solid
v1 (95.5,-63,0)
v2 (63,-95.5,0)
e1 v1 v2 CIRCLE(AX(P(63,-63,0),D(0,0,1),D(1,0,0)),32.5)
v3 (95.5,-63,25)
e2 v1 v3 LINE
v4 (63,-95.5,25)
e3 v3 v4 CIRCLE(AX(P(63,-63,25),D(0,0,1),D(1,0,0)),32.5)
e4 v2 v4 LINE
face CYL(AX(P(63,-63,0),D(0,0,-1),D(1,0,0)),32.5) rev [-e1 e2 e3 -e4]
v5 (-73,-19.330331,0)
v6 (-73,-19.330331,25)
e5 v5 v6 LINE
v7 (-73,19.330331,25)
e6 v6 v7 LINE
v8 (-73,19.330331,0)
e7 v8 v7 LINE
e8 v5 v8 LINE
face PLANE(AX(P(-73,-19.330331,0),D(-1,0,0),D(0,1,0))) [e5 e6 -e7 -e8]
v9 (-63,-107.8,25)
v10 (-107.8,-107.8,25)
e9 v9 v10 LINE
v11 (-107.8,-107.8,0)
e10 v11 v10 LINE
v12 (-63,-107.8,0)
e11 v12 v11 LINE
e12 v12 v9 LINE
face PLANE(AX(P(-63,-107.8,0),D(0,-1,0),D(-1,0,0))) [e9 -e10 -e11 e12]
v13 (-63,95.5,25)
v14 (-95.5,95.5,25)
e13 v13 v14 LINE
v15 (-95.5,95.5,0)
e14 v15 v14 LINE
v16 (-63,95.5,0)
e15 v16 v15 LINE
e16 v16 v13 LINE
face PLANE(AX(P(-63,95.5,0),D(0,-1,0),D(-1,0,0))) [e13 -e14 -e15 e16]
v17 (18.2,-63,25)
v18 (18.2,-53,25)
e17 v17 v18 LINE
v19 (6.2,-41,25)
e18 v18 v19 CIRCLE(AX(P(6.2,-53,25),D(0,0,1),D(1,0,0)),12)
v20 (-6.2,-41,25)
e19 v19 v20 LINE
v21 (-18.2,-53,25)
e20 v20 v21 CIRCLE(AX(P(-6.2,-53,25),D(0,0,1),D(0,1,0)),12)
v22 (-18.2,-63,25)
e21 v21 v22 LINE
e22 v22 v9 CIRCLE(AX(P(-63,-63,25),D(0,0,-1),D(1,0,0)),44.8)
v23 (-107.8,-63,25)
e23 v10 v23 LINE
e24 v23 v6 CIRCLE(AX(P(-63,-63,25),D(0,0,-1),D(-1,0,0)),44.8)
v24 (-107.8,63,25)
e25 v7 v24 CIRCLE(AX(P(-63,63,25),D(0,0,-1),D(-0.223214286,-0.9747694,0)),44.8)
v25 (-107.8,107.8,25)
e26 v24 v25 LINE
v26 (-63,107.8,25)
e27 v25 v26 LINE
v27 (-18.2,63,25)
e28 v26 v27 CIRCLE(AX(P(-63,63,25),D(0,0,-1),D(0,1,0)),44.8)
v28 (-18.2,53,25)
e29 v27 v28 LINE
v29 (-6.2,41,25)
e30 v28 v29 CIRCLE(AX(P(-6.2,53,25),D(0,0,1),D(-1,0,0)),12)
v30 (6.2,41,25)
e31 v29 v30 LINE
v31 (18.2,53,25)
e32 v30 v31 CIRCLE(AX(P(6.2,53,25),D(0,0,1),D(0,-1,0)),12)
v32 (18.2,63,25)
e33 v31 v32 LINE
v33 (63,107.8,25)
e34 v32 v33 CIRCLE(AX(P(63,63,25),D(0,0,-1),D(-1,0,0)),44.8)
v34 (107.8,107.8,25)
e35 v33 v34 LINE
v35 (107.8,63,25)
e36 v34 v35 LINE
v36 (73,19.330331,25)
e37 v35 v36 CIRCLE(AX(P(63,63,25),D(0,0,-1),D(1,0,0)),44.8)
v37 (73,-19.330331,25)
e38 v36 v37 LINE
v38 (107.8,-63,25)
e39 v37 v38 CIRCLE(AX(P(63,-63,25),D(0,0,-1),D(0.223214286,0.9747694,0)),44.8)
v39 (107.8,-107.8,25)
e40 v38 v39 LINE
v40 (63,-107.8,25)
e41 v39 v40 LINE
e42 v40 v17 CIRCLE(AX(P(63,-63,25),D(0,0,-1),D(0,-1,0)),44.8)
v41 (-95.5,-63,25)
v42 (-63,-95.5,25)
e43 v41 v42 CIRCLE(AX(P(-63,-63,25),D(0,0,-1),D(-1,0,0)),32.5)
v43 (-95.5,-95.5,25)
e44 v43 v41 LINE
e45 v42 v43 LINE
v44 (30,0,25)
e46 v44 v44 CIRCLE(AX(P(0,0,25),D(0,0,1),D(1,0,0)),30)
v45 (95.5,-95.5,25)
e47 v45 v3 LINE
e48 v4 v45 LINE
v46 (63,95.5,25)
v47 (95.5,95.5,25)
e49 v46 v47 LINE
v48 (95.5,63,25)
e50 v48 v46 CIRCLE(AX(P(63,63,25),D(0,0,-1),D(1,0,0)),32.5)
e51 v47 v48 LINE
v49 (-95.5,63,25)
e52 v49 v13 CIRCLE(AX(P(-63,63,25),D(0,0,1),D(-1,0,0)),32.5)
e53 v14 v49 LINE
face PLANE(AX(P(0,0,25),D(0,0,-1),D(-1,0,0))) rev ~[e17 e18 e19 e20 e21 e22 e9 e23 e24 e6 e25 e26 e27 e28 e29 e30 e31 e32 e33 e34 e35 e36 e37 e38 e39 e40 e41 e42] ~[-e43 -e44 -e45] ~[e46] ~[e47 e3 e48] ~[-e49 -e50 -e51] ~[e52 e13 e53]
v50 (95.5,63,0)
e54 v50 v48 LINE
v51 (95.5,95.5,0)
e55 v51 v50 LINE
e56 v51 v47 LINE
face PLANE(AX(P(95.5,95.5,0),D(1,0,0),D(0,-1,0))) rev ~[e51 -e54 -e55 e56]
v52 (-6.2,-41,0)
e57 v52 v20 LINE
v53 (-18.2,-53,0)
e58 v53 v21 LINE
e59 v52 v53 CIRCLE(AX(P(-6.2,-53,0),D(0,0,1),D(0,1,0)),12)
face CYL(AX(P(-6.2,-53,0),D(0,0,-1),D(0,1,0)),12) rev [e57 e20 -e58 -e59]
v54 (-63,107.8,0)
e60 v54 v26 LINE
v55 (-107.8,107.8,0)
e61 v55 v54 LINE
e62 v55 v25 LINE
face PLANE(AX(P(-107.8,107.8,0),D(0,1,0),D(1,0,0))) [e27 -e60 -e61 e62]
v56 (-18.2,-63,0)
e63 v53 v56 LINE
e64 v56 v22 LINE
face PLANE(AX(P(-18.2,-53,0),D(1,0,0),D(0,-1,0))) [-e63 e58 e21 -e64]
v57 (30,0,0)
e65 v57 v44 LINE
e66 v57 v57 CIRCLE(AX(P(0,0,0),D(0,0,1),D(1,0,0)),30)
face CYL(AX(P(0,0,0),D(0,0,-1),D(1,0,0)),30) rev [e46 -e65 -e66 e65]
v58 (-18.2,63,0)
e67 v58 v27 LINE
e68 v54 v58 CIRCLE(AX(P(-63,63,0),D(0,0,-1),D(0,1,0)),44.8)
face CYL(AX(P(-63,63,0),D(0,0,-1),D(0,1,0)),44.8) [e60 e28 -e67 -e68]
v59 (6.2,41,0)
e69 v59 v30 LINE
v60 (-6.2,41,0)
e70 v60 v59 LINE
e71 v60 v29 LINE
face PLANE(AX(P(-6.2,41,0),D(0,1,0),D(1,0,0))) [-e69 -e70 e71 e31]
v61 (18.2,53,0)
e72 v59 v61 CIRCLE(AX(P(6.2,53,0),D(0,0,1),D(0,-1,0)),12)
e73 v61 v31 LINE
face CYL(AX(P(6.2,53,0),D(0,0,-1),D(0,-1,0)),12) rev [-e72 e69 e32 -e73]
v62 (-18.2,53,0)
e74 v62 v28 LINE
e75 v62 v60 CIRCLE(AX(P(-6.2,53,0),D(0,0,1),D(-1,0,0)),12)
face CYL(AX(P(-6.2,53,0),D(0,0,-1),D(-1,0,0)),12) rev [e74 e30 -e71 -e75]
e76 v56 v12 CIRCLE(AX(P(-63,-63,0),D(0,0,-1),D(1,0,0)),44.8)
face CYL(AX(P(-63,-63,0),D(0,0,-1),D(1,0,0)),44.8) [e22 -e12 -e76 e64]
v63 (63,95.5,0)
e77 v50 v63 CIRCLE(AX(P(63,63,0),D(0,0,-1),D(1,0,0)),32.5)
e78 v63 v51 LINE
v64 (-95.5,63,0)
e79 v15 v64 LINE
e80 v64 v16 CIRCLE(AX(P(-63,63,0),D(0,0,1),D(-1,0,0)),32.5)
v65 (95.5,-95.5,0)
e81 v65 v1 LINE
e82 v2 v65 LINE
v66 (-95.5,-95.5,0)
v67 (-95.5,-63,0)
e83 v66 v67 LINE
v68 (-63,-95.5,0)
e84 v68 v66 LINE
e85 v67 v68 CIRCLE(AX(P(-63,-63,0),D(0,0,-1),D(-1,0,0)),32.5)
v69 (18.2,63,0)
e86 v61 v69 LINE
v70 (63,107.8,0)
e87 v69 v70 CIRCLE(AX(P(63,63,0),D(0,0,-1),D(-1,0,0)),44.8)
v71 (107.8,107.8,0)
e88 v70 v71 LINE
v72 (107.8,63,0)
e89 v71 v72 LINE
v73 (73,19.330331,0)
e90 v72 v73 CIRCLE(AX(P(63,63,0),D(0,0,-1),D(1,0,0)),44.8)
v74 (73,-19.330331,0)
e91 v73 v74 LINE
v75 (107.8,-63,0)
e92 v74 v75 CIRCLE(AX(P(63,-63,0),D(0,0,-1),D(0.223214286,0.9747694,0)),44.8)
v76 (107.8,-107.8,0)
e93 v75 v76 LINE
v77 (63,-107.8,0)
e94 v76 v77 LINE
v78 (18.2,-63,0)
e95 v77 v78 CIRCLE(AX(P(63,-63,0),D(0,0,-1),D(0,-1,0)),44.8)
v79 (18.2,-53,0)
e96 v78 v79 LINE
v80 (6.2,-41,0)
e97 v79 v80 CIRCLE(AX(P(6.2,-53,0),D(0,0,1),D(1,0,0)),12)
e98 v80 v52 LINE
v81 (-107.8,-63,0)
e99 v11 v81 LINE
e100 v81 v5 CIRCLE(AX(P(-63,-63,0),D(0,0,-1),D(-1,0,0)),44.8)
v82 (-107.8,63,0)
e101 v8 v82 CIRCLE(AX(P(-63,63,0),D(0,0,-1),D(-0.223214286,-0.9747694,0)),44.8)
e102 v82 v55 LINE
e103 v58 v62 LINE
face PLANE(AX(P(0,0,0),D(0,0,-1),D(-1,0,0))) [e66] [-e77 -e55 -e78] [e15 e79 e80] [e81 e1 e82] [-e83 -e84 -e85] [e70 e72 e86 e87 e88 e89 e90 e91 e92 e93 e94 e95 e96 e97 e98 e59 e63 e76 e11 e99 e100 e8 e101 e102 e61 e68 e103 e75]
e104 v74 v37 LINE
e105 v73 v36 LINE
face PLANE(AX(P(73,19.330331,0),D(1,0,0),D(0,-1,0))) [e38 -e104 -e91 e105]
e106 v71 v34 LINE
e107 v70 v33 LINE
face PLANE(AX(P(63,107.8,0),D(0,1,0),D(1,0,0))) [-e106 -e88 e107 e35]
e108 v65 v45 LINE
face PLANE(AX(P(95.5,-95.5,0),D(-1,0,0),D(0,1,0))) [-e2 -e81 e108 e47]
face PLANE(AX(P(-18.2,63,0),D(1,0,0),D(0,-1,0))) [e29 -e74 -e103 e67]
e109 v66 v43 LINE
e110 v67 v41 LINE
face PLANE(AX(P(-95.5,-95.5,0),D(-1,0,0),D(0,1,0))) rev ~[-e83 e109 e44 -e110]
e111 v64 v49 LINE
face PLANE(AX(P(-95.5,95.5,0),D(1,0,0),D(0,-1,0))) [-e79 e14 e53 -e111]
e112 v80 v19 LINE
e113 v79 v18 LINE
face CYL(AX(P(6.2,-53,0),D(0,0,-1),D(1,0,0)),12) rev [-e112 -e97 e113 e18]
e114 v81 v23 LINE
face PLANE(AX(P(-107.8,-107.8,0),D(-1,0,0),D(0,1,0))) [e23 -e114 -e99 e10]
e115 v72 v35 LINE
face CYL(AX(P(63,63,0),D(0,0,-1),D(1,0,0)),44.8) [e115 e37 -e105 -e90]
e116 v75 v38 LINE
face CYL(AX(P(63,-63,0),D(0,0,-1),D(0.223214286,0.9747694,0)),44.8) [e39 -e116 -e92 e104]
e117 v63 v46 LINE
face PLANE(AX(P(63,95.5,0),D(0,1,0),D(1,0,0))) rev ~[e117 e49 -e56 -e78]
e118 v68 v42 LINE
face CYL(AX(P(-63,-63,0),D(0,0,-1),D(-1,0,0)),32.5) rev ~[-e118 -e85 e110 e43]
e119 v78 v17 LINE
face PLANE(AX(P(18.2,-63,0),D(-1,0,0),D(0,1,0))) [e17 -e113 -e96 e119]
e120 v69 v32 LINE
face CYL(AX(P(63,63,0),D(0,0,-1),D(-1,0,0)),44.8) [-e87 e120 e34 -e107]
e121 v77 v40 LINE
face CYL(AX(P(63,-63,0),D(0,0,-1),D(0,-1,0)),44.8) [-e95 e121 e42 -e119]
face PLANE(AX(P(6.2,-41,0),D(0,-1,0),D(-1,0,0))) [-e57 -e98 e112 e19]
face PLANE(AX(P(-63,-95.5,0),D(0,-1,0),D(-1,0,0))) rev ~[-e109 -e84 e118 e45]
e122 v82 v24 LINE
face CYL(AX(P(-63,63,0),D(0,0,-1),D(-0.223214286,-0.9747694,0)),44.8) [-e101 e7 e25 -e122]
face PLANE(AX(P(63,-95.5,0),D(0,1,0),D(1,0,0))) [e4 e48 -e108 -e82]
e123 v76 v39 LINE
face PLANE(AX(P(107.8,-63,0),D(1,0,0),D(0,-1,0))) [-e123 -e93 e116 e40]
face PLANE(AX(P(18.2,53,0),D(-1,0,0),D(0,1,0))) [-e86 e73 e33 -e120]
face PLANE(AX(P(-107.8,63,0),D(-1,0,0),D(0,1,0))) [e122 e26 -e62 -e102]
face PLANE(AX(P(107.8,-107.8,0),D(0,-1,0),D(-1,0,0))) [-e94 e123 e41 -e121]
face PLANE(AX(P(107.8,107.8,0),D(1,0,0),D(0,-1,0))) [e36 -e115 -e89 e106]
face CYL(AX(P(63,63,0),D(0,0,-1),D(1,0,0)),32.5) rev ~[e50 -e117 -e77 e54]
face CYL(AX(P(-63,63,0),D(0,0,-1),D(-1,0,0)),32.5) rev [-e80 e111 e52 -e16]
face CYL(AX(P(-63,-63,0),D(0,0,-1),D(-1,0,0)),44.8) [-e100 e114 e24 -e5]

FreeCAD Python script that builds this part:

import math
import FreeCAD as App
import Part
import Sketcher

V = App.Vector
Q = App.Units.Quantity

doc = App.newDocument("Part")
params = doc.addObject("Spreadsheet::Sheet", "Params")
for row, (alias, value) in enumerate([
    ("sketch1_diameter", "60 mm"),
    ("sketch1_radius", "12 mm"),
    ("sketch1_radius2", "44.8 mm"),
    ("sketch1_radius3", "32.5 mm"),
    ("sketch1_height", "10 mm"),
    ("pad1_length", "25 mm"),
], start=1):
    params.set(f"A{row}", alias)
    params.set(f"B{row}", "=" + value)
    params.setAlias(f"B{row}", alias)

body = doc.addObject("PartDesign::Body", "Body")

# Sketch on XY plane
sketch1 = body.newObject("Sketcher::SketchObject", "Sketch")
sketch1.AttachmentSupport = (doc.getObject("XY_Plane"), [""])
sketch1.MapMode = "FlatFace"
sketch1.addGeometry(Part.LineSegment(V(107.8, 107.8, 0), V(63, 107.8, 0)), False)
sketch1.addGeometry(Part.ArcOfCircle(Part.Circle(V(63, 63, 0), V(0, 0, 1), 44.8), math.radians(90), math.radians(180)), False)
sketch1.addGeometry(Part.LineSegment(V(18.2, 63, 0), V(18.2, 53, 0)), False)
sketch1.addGeometry(Part.ArcOfCircle(Part.Circle(V(6.2, 53, 0), V(0, 0, 1), 12), math.radians(-90), math.radians(0)), False)
sketch1.addGeometry(Part.LineSegment(V(6.2, 41, 0), V(-6.2, 41, 0)), False)
sketch1.addGeometry(Part.ArcOfCircle(Part.Circle(V(-6.2, 53, 0), V(0, 0, 1), 12), math.radians(-180), math.radians(-90)), False)
sketch1.addGeometry(Part.LineSegment(V(-18.2, 53, 0), V(-18.2, 63, 0)), False)
sketch1.addGeometry(Part.ArcOfCircle(Part.Circle(V(-63, 63, 0), V(0, 0, 1), 44.8), math.radians(0), math.radians(90)), False)
sketch1.addGeometry(Part.LineSegment(V(-63, 107.8, 0), V(-107.8, 107.8, 0)), False)
sketch1.addGeometry(Part.LineSegment(V(-107.8, 107.8, 0), V(-107.8, 63, 0)), False)
sketch1.addGeometry(Part.ArcOfCircle(Part.Circle(V(-63, 63, 0), V(0, 0, 1), 44.8), math.radians(180), math.radians(257.102106)), False)
sketch1.addGeometry(Part.LineSegment(V(-73, 19.330331, 0), V(-73, -19.330331, 0)), False)
sketch1.addGeometry(Part.ArcOfCircle(Part.Circle(V(-63, -63, 0), V(0, 0, 1), 44.8), math.radians(102.897894), math.radians(180)), False)
sketch1.addGeometry(Part.LineSegment(V(-107.8, -63, 0), V(-107.8, -107.8, 0)), False)
sketch1.addGeometry(Part.LineSegment(V(-107.8, -107.8, 0), V(-63, -107.8, 0)), False)
sketch1.addGeometry(Part.ArcOfCircle(Part.Circle(V(-63, -63, 0), V(0, 0, 1), 44.8), math.radians(-90), math.radians(0)), False)
sketch1.addGeometry(Part.LineSegment(V(-18.2, -63, 0), V(-18.2, -53, 0)), False)
sketch1.addGeometry(Part.ArcOfCircle(Part.Circle(V(-6.2, -53, 0), V(0, 0, 1), 12), math.radians(90), math.radians(180)), False)
sketch1.addGeometry(Part.LineSegment(V(-6.2, -41, 0), V(6.2, -41, 0)), False)
sketch1.addGeometry(Part.ArcOfCircle(Part.Circle(V(6.2, -53, 0), V(0, 0, 1), 12), math.radians(0), math.radians(90)), False)
sketch1.addGeometry(Part.LineSegment(V(18.2, -53, 0), V(18.2, -63, 0)), False)
sketch1.addGeometry(Part.ArcOfCircle(Part.Circle(V(63, -63, 0), V(0, 0, 1), 44.8), math.radians(-180), math.radians(-90)), False)
sketch1.addGeometry(Part.LineSegment(V(63, -107.8, 0), V(107.8, -107.8, 0)), False)
sketch1.addGeometry(Part.LineSegment(V(107.8, -107.8, 0), V(107.8, -63, 0)), False)
sketch1.addGeometry(Part.ArcOfCircle(Part.Circle(V(63, -63, 0), V(0, 0, 1), 44.8), math.radians(0), math.radians(77.102106)), False)
sketch1.addGeometry(Part.LineSegment(V(73, -19.330331, 0), V(73, 19.330331, 0)), False)
sketch1.addGeometry(Part.ArcOfCircle(Part.Circle(V(63, 63, 0), V(0, 0, 1), 44.8), math.radians(-77.102106), math.radians(0)), False)
sketch1.addGeometry(Part.LineSegment(V(107.8, 63, 0), V(107.8, 107.8, 0)), False)
sketch1.addGeometry(Part.LineSegment(V(95.5, -95.5, 0), V(63, -95.5, 0)), False)
sketch1.addGeometry(Part.ArcOfCircle(Part.Circle(V(63, -63, 0), V(0, 0, 1), 32.5), math.radians(0), math.radians(270)), False)
sketch1.addGeometry(Part.LineSegment(V(95.5, -63, 0), V(95.5, -95.5, 0)), False)
sketch1.addGeometry(Part.LineSegment(V(-63, -95.5, 0), V(-95.5, -95.5, 0)), False)
sketch1.addGeometry(Part.LineSegment(V(-95.5, -95.5, 0), V(-95.5, -63, 0)), False)
sketch1.addGeometry(Part.ArcOfCircle(Part.Circle(V(-63, -63, 0), V(0, 0, 1), 32.5), math.radians(-90), math.radians(180)), False)
sketch1.addGeometry(Part.LineSegment(V(63, 95.5, 0), V(95.5, 95.5, 0)), False)
sketch1.addGeometry(Part.LineSegment(V(95.5, 95.5, 0), V(95.5, 63, 0)), False)
sketch1.addGeometry(Part.ArcOfCircle(Part.Circle(V(63, 63, 0), V(0, 0, 1), 32.5), math.radians(90), math.radians(360)), False)
sketch1.addGeometry(Part.Circle(V(0, 0, 0), V(0, 0, 1), 30), False)
sketch1.addGeometry(Part.LineSegment(V(-95.5, 95.5, 0), V(-63, 95.5, 0)), False)
sketch1.addGeometry(Part.ArcOfCircle(Part.Circle(V(-63, 63, 0), V(0, 0, 1), 32.5), math.radians(180), math.radians(450)), False)
sketch1.addGeometry(Part.LineSegment(V(-95.5, 63, 0), V(-95.5, 95.5, 0)), False)
sketch1.addConstraint(Sketcher.Constraint("Tangent", 0, 2, 1, 1))
sketch1.addConstraint(Sketcher.Constraint("Tangent", 1, 2, 2, 1))
sketch1.addConstraint(Sketcher.Constraint("Tangent", 2, 2, 3, 2))
sketch1.addConstraint(Sketcher.Constraint("Tangent", 3, 1, 4, 1))
sketch1.addConstraint(Sketcher.Constraint("Tangent", 4, 2, 5, 2))
sketch1.addConstraint(Sketcher.Constraint("Tangent", 5, 1, 6, 1))
sketch1.addConstraint(Sketcher.Constraint("Tangent", 6, 2, 7, 1))
sketch1.addConstraint(Sketcher.Constraint("Tangent", 7, 2, 8, 1))
sketch1.addConstraint(Sketcher.Constraint("Coincident", 8, 2, 9, 1))
sketch1.addConstraint(Sketcher.Constraint("Tangent", 9, 2, 10, 1))
sketch1.addConstraint(Sketcher.Constraint("Coincident", 10, 2, 11, 1))
sketch1.addConstraint(Sketcher.Constraint("Coincident", 11, 2, 12, 1))
sketch1.addConstraint(Sketcher.Constraint("Tangent", 12, 2, 13, 1))
sketch1.addConstraint(Sketcher.Constraint("Coincident", 13, 2, 14, 1))
sketch1.addConstraint(Sketcher.Constraint("Tangent", 14, 2, 15, 1))
sketch1.addConstraint(Sketcher.Constraint("Tangent", 15, 2, 16, 1))
sketch1.addConstraint(Sketcher.Constraint("Tangent", 16, 2, 17, 2))
sketch1.addConstraint(Sketcher.Constraint("Tangent", 17, 1, 18, 1))
sketch1.addConstraint(Sketcher.Constraint("Tangent", 18, 2, 19, 2))
sketch1.addConstraint(Sketcher.Constraint("Tangent", 19, 1, 20, 1))
sketch1.addConstraint(Sketcher.Constraint("Tangent", 20, 2, 21, 1))
sketch1.addConstraint(Sketcher.Constraint("Tangent", 21, 2, 22, 1))
sketch1.addConstraint(Sketcher.Constraint("Coincident", 22, 2, 23, 1))
sketch1.addConstraint(Sketcher.Constraint("Tangent", 23, 2, 24, 1))
sketch1.addConstraint(Sketcher.Constraint("Coincident", 24, 2, 25, 1))
sketch1.addConstraint(Sketcher.Constraint("Coincident", 25, 2, 26, 1))
sketch1.addConstraint(Sketcher.Constraint("Tangent", 26, 2, 27, 1))
sketch1.addConstraint(Sketcher.Constraint("Coincident", 27, 2, 0, 1))
sketch1.addConstraint(Sketcher.Constraint("Tangent", 28, 2, 29, 2))
sketch1.addConstraint(Sketcher.Constraint("Tangent", 29, 1, 30, 1))
sketch1.addConstraint(Sketcher.Constraint("Coincident", 30, 2, 28, 1))
sketch1.addConstraint(Sketcher.Constraint("Coincident", 31, 2, 32, 1))
sketch1.addConstraint(Sketcher.Constraint("Tangent", 32, 2, 33, 2))
sketch1.addConstraint(Sketcher.Constraint("Tangent", 33, 1, 31, 1))
sketch1.addConstraint(Sketcher.Constraint("Coincident", 34, 2, 35, 1))
sketch1.addConstraint(Sketcher.Constraint("Tangent", 35, 2, 36, 2))
sketch1.addConstraint(Sketcher.Constraint("Tangent", 36, 1, 34, 1))
sketch1.addConstraint(Sketcher.Constraint("Tangent", 38, 2, 39, 2))
sketch1.addConstraint(Sketcher.Constraint("Tangent", 39, 1, 40, 1))
sketch1.addConstraint(Sketcher.Constraint("Coincident", 40, 2, 38, 1))
sketch1.addConstraint(Sketcher.Constraint("Horizontal", 0))
sketch1.addConstraint(Sketcher.Constraint("Vertical", 2))
sketch1.addConstraint(Sketcher.Constraint("Horizontal", 4))
sketch1.addConstraint(Sketcher.Constraint("Vertical", 6))
sketch1.addConstraint(Sketcher.Constraint("Horizontal", 8))
sketch1.addConstraint(Sketcher.Constraint("Vertical", 9))
sketch1.addConstraint(Sketcher.Constraint("Vertical", 11))
sketch1.addConstraint(Sketcher.Constraint("Vertical", 13))
sketch1.addConstraint(Sketcher.Constraint("Horizontal", 14))
sketch1.addConstraint(Sketcher.Constraint("Vertical", 16))
sketch1.addConstraint(Sketcher.Constraint("Horizontal", 18))
sketch1.addConstraint(Sketcher.Constraint("Vertical", 20))
sketch1.addConstraint(Sketcher.Constraint("Horizontal", 22))
sketch1.addConstraint(Sketcher.Constraint("Vertical", 23))
sketch1.addConstraint(Sketcher.Constraint("Vertical", 25))
sketch1.addConstraint(Sketcher.Constraint("Vertical", 27))
sketch1.addConstraint(Sketcher.Constraint("Horizontal", 28))
sketch1.addConstraint(Sketcher.Constraint("Vertical", 30))
sketch1.addConstraint(Sketcher.Constraint("Horizontal", 31))
sketch1.addConstraint(Sketcher.Constraint("Vertical", 32))
sketch1.addConstraint(Sketcher.Constraint("Horizontal", 34))
sketch1.addConstraint(Sketcher.Constraint("Vertical", 35))
sketch1.addConstraint(Sketcher.Constraint("Horizontal", 38))
sketch1.addConstraint(Sketcher.Constraint("Vertical", 40))
sketch1.addConstraint(Sketcher.Constraint("Coincident", 37, 3, -1, 1))
sketch1.addConstraint(Sketcher.Constraint("Coincident", 10, 3, 7, 3))
sketch1.addConstraint(Sketcher.Constraint("Coincident", 15, 3, 12, 3))
sketch1.addConstraint(Sketcher.Constraint("Coincident", 24, 3, 21, 3))
sketch1.addConstraint(Sketcher.Constraint("Coincident", 26, 3, 1, 3))
sketch1.addConstraint(Sketcher.Constraint("Coincident", 29, 3, 21, 3))
sketch1.addConstraint(Sketcher.Constraint("Coincident", 33, 3, 12, 3))
sketch1.addConstraint(Sketcher.Constraint("Coincident", 36, 3, 1, 3))
sketch1.addConstraint(Sketcher.Constraint("Coincident", 39, 3, 7, 3))
sketch1.addConstraint(Sketcher.Constraint("Equal", 3, 5))
sketch1.addConstraint(Sketcher.Constraint("Equal", 1, 7))
sketch1.addConstraint(Sketcher.Constraint("Equal", 7, 10))
sketch1.addConstraint(Sketcher.Constraint("Equal", 10, 12))
sketch1.addConstraint(Sketcher.Constraint("Equal", 12, 15))
sketch1.addConstraint(Sketcher.Constraint("Equal", 5, 17))
sketch1.addConstraint(Sketcher.Constraint("Equal", 17, 19))
sketch1.addConstraint(Sketcher.Constraint("Equal", 15, 21))
sketch1.addConstraint(Sketcher.Constraint("Equal", 21, 24))
sketch1.addConstraint(Sketcher.Constraint("Equal", 24, 26))
sketch1.addConstraint(Sketcher.Constraint("Equal", 29, 33))
sketch1.addConstraint(Sketcher.Constraint("Equal", 33, 36))
sketch1.addConstraint(Sketcher.Constraint("Equal", 36, 39))
sketch1.addConstraint(Sketcher.Constraint("Symmetric", 1, 3, 12, 3, -1, 1))
sketch1.addConstraint(Sketcher.Constraint("Symmetric", 5, 3, 19, 3, -1, 1))
sketch1.addConstraint(Sketcher.Constraint("Symmetric", 10, 2, 24, 2, -1, 1))
sketch1.addConstraint(Sketcher.Constraint("Symmetric", 1, 3, 7, 3, -2))
sketch1.addConstraint(Sketcher.Constraint("Diameter", 37, Q("60 mm")))
sketch1.addConstraint(Sketcher.Constraint("Radius", 3, Q("12 mm")))
sketch1.addConstraint(Sketcher.Constraint("Radius", 1, Q("44.8 mm")))
sketch1.addConstraint(Sketcher.Constraint("Radius", 29, Q("32.5 mm")))
sketch1.addConstraint(Sketcher.Constraint("DistanceY", 2, 2, 2, 1, Q("10 mm")))
sketch1.addConstraint(Sketcher.Constraint("DistanceX", 4, 2, 4, 1, Q("12.4 mm")))
sketch1.addConstraint(Sketcher.Constraint("DistanceY", -1, 1, 1, 3, Q("63 mm")))
sketch1.addConstraint(Sketcher.Constraint("DistanceX", 10, 2, -1, 1, Q("73 mm")))
sketch1.setExpression("Constraints[90]", "Params.sketch1_diameter")
sketch1.setExpression("Constraints[91]", "Params.sketch1_radius")
sketch1.setExpression("Constraints[92]", "Params.sketch1_radius2")
sketch1.setExpression("Constraints[93]", "Params.sketch1_radius3")
sketch1.setExpression("Constraints[94]", "Params.sketch1_height")
pad1 = body.newObject("PartDesign::Pad", "Pad")
pad1.Profile = sketch1
pad1.setExpression("Length", "Params.pad1_length")

doc.recompute()
